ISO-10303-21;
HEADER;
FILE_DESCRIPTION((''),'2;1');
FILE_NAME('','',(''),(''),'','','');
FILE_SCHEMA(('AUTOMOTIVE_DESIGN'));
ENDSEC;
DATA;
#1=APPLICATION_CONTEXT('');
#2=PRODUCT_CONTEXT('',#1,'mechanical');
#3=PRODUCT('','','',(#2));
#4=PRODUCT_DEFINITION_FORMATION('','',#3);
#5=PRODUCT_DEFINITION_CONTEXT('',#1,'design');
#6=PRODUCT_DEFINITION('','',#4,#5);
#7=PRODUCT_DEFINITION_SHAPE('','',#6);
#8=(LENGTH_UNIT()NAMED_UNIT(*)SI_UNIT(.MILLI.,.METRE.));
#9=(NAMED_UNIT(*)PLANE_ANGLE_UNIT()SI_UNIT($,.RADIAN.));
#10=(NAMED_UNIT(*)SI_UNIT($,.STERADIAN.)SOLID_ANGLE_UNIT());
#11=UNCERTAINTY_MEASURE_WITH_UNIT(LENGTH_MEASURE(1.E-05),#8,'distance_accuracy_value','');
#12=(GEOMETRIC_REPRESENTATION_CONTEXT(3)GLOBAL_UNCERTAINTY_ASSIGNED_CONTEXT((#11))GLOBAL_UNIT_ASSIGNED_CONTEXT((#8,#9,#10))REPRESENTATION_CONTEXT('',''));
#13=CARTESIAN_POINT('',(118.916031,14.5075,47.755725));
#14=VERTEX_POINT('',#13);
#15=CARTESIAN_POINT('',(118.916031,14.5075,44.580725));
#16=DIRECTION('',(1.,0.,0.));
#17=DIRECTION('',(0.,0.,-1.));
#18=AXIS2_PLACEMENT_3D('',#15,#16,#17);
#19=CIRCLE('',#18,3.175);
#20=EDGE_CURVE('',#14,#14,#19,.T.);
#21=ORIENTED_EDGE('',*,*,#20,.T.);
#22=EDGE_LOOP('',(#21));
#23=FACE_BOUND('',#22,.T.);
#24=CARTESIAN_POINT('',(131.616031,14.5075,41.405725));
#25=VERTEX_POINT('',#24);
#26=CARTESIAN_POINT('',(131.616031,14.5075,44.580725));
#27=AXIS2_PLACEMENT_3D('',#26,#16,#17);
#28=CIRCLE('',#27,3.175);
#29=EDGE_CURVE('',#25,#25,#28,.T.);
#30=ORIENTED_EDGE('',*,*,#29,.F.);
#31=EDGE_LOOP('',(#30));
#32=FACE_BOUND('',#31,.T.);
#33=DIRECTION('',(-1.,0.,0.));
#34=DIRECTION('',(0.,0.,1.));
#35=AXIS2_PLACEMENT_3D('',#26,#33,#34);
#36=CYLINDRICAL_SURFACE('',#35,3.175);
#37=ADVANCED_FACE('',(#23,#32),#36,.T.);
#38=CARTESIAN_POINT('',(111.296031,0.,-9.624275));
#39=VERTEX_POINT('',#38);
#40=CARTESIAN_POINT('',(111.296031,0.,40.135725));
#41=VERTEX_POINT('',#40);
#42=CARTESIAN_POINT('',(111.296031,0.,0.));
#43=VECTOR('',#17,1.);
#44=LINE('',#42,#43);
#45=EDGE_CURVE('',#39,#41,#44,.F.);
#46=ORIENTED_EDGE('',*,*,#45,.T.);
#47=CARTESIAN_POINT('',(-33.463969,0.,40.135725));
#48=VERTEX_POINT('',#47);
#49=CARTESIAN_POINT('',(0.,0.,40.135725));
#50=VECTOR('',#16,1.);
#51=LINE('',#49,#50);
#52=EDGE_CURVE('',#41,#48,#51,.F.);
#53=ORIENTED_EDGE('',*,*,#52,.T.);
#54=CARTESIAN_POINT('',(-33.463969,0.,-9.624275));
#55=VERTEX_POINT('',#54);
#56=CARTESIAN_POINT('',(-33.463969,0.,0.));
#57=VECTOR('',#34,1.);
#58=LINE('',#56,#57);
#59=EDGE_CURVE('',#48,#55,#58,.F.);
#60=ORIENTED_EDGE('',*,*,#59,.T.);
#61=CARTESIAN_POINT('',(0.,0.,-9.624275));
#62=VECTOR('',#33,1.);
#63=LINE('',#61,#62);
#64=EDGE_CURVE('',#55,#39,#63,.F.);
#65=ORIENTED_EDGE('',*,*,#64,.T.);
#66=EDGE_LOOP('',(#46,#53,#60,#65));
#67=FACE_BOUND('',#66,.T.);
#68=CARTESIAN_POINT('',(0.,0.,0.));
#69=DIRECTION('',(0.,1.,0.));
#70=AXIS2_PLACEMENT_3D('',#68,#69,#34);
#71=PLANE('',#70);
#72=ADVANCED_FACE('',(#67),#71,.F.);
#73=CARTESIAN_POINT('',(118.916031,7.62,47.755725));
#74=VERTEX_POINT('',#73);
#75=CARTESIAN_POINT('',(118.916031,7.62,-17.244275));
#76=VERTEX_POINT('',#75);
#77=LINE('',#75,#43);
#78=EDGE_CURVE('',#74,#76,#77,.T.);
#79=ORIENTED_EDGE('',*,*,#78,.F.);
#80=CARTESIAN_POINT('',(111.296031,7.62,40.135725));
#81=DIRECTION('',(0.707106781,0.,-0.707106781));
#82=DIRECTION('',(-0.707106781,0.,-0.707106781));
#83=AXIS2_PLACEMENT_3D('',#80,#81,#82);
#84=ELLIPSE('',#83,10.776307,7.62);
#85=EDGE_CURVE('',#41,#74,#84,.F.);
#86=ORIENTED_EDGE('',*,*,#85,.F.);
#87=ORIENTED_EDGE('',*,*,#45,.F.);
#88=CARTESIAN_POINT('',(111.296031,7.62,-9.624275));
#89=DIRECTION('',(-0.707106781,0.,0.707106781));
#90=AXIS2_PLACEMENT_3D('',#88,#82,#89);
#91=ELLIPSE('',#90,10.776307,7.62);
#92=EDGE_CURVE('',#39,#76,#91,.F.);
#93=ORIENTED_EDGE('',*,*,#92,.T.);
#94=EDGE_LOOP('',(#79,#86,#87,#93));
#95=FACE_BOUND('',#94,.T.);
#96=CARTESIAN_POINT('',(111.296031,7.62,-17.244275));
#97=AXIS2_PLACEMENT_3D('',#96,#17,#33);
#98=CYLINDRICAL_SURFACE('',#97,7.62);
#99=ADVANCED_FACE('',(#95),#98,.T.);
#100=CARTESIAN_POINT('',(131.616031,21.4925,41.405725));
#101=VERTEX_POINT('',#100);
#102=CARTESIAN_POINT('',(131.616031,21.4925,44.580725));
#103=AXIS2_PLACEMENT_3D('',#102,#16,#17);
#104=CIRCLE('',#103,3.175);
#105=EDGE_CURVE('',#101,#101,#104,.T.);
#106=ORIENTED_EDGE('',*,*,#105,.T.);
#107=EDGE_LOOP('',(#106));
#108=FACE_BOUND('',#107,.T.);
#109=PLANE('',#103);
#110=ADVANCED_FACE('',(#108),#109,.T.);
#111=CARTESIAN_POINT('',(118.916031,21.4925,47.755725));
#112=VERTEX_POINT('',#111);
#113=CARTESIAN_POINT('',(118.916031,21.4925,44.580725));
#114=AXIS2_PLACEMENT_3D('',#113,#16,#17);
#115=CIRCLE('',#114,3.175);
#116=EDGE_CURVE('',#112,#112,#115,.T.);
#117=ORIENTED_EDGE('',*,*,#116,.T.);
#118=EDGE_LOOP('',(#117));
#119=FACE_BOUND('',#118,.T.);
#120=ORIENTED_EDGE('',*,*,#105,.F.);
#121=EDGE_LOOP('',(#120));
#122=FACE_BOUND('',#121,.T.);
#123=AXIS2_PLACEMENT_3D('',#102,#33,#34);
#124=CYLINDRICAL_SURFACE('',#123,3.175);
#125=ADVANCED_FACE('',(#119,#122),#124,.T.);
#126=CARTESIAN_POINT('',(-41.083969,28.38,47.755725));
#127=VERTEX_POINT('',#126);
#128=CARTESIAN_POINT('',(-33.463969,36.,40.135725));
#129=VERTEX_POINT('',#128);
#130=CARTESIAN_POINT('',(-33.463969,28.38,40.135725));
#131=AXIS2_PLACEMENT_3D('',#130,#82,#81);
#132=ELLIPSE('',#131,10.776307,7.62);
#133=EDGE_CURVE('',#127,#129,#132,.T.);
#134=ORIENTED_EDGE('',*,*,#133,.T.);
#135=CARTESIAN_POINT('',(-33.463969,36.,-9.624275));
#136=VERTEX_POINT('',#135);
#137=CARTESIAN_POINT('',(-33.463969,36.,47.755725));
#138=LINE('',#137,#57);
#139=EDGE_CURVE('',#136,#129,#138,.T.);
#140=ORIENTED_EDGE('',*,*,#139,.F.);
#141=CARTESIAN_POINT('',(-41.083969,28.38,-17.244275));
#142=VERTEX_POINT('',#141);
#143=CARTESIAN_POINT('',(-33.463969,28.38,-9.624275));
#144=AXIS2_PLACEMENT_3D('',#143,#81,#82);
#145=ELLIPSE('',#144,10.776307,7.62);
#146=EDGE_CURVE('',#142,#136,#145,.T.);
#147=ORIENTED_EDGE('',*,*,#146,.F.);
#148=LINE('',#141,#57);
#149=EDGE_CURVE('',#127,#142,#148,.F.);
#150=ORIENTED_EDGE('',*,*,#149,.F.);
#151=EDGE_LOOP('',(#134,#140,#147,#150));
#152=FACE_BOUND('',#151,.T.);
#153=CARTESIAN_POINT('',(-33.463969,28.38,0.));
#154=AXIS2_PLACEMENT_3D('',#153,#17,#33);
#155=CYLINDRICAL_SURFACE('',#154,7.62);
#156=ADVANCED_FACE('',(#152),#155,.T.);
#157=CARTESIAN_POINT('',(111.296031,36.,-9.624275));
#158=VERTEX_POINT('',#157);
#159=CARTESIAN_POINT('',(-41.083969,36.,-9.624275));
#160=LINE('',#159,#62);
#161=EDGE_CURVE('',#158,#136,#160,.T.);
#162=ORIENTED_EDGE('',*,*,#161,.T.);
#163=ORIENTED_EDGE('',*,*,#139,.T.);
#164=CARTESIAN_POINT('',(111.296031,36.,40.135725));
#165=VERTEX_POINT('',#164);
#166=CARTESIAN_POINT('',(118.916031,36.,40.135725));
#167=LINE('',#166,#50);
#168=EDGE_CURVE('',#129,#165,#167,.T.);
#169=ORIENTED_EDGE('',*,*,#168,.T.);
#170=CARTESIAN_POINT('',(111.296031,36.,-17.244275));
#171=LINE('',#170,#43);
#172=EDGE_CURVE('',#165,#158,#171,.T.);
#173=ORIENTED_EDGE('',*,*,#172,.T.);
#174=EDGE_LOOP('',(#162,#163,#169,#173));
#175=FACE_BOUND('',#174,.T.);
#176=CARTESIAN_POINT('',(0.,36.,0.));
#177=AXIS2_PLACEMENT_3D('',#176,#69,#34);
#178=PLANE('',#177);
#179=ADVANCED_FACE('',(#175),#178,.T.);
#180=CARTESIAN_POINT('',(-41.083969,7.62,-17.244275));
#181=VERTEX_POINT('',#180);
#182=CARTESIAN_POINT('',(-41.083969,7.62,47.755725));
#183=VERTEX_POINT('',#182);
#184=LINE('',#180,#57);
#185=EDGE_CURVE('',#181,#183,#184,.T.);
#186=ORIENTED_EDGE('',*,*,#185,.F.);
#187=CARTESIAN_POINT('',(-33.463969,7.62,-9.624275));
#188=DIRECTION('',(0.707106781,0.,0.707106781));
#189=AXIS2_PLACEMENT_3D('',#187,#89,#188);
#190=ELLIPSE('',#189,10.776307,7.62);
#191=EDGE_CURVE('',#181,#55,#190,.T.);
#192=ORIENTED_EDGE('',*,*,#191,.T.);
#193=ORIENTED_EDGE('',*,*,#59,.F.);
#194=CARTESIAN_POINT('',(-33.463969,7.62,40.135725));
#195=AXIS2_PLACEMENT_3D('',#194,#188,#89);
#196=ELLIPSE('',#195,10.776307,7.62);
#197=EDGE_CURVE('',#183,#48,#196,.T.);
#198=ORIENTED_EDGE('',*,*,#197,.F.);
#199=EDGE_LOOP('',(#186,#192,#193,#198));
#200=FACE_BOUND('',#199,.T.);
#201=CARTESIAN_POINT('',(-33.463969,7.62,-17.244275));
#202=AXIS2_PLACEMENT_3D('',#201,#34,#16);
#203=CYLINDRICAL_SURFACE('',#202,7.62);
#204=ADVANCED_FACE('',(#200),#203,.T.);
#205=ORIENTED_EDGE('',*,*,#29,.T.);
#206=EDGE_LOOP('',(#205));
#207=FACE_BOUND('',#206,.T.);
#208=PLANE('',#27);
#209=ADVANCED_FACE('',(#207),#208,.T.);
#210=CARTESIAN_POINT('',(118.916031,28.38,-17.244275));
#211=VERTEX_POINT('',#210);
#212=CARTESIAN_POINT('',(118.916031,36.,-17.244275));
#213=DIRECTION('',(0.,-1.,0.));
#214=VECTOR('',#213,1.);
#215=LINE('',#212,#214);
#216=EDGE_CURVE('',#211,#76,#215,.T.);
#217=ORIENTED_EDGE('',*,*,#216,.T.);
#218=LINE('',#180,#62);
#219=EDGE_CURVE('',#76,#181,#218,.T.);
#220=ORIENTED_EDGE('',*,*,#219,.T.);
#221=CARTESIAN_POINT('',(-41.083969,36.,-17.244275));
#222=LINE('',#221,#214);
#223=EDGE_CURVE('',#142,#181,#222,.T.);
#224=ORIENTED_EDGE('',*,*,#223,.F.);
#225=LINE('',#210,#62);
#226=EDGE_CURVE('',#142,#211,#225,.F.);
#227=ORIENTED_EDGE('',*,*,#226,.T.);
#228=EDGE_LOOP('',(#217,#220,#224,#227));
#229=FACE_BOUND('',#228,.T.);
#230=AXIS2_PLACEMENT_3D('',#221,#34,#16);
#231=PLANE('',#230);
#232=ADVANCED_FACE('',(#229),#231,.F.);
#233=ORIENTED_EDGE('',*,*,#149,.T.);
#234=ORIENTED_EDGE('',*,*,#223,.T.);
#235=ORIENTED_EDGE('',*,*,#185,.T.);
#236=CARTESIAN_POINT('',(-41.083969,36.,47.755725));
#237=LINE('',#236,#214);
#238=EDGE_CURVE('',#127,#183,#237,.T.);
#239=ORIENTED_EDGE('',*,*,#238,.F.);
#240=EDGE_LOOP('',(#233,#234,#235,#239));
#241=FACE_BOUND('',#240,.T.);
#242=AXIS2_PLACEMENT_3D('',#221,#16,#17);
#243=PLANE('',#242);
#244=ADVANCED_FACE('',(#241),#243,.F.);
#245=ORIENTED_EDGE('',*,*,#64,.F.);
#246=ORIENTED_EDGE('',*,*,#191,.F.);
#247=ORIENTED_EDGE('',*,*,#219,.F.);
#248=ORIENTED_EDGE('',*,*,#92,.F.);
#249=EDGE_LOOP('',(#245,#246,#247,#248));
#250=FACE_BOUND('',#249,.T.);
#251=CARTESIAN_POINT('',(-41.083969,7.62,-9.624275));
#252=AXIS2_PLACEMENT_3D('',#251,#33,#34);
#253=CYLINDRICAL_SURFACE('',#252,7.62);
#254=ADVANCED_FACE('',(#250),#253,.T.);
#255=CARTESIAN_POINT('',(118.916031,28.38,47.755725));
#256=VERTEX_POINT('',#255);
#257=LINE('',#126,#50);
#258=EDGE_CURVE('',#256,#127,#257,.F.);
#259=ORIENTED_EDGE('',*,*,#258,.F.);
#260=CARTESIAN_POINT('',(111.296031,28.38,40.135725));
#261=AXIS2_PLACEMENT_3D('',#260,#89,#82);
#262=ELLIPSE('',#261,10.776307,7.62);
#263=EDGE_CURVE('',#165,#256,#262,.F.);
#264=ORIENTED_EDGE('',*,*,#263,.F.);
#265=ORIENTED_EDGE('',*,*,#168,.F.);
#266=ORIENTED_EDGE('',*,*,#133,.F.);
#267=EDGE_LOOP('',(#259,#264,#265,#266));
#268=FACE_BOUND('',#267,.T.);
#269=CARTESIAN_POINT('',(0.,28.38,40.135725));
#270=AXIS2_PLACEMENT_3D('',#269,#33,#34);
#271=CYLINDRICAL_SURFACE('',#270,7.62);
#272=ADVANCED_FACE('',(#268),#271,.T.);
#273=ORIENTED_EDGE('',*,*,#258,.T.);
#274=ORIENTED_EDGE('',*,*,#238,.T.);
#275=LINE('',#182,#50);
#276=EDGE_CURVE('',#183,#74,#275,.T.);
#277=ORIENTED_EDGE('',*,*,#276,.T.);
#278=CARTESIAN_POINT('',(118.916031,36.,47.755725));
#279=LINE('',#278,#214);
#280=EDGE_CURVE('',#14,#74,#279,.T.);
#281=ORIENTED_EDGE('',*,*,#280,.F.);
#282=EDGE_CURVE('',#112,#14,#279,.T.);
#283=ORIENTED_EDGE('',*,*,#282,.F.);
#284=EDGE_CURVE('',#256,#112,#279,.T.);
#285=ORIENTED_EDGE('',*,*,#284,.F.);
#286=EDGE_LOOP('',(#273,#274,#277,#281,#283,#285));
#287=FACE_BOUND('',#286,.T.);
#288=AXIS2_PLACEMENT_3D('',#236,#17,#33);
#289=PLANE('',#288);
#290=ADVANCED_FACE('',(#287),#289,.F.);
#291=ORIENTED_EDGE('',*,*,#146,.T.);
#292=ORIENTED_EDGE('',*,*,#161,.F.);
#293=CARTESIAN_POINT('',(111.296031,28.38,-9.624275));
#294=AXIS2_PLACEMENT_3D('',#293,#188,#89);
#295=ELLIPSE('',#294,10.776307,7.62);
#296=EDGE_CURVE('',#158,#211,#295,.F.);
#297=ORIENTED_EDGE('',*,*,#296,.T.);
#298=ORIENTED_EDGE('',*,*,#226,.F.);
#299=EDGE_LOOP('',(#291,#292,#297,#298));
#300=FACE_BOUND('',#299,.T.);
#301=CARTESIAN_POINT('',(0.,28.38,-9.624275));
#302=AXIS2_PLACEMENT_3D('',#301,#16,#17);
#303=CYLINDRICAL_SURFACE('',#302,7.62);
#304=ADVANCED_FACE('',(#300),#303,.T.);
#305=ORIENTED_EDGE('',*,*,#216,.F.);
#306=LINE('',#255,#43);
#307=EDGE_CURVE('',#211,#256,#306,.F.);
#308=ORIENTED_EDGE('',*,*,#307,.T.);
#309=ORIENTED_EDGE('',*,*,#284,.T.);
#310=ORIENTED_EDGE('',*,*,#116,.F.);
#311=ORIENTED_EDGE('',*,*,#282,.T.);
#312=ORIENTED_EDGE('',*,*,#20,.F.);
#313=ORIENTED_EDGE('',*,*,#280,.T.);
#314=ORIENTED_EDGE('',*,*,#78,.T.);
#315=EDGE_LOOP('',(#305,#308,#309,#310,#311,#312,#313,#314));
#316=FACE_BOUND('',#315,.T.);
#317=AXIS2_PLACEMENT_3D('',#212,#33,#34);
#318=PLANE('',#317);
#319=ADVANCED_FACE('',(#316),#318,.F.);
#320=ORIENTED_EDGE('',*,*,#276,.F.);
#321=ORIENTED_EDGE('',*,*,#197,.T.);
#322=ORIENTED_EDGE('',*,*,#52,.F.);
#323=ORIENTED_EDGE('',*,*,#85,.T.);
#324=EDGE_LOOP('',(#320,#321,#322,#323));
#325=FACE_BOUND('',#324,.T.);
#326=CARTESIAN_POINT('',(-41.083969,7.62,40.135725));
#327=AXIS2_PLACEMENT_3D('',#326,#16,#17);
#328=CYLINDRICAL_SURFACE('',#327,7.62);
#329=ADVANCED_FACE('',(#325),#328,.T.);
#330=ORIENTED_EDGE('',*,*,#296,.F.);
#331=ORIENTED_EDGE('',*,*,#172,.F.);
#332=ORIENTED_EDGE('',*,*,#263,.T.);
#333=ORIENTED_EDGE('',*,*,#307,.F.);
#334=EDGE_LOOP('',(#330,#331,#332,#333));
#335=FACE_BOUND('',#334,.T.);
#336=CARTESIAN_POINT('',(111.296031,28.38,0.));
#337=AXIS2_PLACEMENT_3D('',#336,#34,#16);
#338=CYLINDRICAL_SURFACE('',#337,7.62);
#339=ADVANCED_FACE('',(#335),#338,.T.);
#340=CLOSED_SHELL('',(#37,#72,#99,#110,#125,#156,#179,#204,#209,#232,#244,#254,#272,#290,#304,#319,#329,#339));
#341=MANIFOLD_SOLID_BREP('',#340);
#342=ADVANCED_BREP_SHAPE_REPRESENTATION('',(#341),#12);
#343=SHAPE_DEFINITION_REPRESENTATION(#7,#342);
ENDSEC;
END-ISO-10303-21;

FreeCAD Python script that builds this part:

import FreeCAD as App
import Part
import Sketcher
Q = App.Units.Quantity


def edges_at(feature, points):
    """Names of the edges that pass closest to the given points."""
    edges = feature.Shape.Edges
    near = lambda p: min(range(len(edges)), key=lambda i: edges[i].distToShape(Part.Vertex(*p))[0])
    return sorted({f"Edge{near(p) + 1}" for p in points})


def add_polygon(sketch, points):
    """Adds a closed chain of lines whose ends are joined by coincident constraints."""
    first, n = sketch.GeometryCount, len(points)
    for a, b in zip(points, points[1:] + points[:1]):
        sketch.addGeometry(Part.LineSegment(App.Vector(*a, 0), App.Vector(*b, 0)), False)
    for i in range(n):
        sketch.addConstraint(Sketcher.Constraint("Coincident", first + i, 2, first + (i + 1) % n, 1))

doc = App.newDocument("Part")
body = doc.addObject("PartDesign::Body", "Body")

sketch1 = body.newObject("Sketcher::SketchObject", "Sketch")
sketch1.AttachmentSupport = (doc.getObject("XZ_Plane"), [""])
sketch1.MapMode = "FlatFace"
add_polygon(sketch1, [(-41, -17), (-41, 48), (119, 48), (119, -17)])
sketch1.addConstraint([
    Sketcher.Constraint("Vertical", 0),
    Sketcher.Constraint("Horizontal", 1),
    Sketcher.Constraint("Vertical", 2),
    Sketcher.Constraint("Horizontal", 3),
    Sketcher.Constraint("DistanceX", 1, 1, 1, 2, Q("160 mm")),
    Sketcher.Constraint("DistanceY", 0, 1, 0, 2, Q("65 mm")),
    Sketcher.Constraint("DistanceX", 0, 2, -1, 1, Q("41.083969 mm")),
    Sketcher.Constraint("DistanceY", -1, 1, 0, 2, Q("47.755725 mm")),
])
pad1 = body.newObject("PartDesign::Pad", "Pad")
pad1.Profile = sketch1
pad1.Length = 36
pad1.Reversed = True

sketch2 = body.newObject("Sketcher::SketchObject", "Sketch001")
sketch2.AttachmentSupport = (doc.getObject("YZ_Plane"), [""])
sketch2.MapMode = "FlatFace"
sketch2.AttachmentOffset = App.Placement(App.Vector(0, 0, 118.916031), App.Rotation())
sketch2.addGeometry([
    Part.Circle(App.Vector(21.5, 44.6, 0), App.Vector(0, 0, 1), 3.2),
    Part.Circle(App.Vector(14.5, 44.6, 0), App.Vector(0, 0, 1), 3.2),
], False)
sketch2.addConstraint([
    Sketcher.Constraint("Equal", 0, 1),
    Sketcher.Constraint("Horizontal", 0, 3, 1, 3),
    Sketcher.Constraint("Diameter", 0, Q("6.35 mm")),
    Sketcher.Constraint("DistanceX", 1, 3, 0, 3, Q("6.985 mm")),
    Sketcher.Constraint("DistanceX", -1, 1, 0, 3, Q("21.4925 mm")),
    Sketcher.Constraint("DistanceY", -1, 1, 0, 3, Q("44.580725 mm")),
])
pad2 = body.newObject("PartDesign::Pad", "Pad001")
pad2.Profile = sketch2
pad2.Length = 12.7
doc.recompute()

fillet = body.newObject("PartDesign::Fillet", "Fillet")
fillet.Base = (pad2, edges_at(pad2, [
    (118.916, 36, 15.256),
    (38.916, 36, -17.244),
    (-41.084, 36, 15.256),
    (38.916, 0, -17.244),
    (118.916, 0, 15.256),
    (38.916, 0, 47.756),
    (-41.084, 0, 15.256),
    (38.916, 36, 47.756),
]))
fillet.Radius = 7.62

doc.recompute()
